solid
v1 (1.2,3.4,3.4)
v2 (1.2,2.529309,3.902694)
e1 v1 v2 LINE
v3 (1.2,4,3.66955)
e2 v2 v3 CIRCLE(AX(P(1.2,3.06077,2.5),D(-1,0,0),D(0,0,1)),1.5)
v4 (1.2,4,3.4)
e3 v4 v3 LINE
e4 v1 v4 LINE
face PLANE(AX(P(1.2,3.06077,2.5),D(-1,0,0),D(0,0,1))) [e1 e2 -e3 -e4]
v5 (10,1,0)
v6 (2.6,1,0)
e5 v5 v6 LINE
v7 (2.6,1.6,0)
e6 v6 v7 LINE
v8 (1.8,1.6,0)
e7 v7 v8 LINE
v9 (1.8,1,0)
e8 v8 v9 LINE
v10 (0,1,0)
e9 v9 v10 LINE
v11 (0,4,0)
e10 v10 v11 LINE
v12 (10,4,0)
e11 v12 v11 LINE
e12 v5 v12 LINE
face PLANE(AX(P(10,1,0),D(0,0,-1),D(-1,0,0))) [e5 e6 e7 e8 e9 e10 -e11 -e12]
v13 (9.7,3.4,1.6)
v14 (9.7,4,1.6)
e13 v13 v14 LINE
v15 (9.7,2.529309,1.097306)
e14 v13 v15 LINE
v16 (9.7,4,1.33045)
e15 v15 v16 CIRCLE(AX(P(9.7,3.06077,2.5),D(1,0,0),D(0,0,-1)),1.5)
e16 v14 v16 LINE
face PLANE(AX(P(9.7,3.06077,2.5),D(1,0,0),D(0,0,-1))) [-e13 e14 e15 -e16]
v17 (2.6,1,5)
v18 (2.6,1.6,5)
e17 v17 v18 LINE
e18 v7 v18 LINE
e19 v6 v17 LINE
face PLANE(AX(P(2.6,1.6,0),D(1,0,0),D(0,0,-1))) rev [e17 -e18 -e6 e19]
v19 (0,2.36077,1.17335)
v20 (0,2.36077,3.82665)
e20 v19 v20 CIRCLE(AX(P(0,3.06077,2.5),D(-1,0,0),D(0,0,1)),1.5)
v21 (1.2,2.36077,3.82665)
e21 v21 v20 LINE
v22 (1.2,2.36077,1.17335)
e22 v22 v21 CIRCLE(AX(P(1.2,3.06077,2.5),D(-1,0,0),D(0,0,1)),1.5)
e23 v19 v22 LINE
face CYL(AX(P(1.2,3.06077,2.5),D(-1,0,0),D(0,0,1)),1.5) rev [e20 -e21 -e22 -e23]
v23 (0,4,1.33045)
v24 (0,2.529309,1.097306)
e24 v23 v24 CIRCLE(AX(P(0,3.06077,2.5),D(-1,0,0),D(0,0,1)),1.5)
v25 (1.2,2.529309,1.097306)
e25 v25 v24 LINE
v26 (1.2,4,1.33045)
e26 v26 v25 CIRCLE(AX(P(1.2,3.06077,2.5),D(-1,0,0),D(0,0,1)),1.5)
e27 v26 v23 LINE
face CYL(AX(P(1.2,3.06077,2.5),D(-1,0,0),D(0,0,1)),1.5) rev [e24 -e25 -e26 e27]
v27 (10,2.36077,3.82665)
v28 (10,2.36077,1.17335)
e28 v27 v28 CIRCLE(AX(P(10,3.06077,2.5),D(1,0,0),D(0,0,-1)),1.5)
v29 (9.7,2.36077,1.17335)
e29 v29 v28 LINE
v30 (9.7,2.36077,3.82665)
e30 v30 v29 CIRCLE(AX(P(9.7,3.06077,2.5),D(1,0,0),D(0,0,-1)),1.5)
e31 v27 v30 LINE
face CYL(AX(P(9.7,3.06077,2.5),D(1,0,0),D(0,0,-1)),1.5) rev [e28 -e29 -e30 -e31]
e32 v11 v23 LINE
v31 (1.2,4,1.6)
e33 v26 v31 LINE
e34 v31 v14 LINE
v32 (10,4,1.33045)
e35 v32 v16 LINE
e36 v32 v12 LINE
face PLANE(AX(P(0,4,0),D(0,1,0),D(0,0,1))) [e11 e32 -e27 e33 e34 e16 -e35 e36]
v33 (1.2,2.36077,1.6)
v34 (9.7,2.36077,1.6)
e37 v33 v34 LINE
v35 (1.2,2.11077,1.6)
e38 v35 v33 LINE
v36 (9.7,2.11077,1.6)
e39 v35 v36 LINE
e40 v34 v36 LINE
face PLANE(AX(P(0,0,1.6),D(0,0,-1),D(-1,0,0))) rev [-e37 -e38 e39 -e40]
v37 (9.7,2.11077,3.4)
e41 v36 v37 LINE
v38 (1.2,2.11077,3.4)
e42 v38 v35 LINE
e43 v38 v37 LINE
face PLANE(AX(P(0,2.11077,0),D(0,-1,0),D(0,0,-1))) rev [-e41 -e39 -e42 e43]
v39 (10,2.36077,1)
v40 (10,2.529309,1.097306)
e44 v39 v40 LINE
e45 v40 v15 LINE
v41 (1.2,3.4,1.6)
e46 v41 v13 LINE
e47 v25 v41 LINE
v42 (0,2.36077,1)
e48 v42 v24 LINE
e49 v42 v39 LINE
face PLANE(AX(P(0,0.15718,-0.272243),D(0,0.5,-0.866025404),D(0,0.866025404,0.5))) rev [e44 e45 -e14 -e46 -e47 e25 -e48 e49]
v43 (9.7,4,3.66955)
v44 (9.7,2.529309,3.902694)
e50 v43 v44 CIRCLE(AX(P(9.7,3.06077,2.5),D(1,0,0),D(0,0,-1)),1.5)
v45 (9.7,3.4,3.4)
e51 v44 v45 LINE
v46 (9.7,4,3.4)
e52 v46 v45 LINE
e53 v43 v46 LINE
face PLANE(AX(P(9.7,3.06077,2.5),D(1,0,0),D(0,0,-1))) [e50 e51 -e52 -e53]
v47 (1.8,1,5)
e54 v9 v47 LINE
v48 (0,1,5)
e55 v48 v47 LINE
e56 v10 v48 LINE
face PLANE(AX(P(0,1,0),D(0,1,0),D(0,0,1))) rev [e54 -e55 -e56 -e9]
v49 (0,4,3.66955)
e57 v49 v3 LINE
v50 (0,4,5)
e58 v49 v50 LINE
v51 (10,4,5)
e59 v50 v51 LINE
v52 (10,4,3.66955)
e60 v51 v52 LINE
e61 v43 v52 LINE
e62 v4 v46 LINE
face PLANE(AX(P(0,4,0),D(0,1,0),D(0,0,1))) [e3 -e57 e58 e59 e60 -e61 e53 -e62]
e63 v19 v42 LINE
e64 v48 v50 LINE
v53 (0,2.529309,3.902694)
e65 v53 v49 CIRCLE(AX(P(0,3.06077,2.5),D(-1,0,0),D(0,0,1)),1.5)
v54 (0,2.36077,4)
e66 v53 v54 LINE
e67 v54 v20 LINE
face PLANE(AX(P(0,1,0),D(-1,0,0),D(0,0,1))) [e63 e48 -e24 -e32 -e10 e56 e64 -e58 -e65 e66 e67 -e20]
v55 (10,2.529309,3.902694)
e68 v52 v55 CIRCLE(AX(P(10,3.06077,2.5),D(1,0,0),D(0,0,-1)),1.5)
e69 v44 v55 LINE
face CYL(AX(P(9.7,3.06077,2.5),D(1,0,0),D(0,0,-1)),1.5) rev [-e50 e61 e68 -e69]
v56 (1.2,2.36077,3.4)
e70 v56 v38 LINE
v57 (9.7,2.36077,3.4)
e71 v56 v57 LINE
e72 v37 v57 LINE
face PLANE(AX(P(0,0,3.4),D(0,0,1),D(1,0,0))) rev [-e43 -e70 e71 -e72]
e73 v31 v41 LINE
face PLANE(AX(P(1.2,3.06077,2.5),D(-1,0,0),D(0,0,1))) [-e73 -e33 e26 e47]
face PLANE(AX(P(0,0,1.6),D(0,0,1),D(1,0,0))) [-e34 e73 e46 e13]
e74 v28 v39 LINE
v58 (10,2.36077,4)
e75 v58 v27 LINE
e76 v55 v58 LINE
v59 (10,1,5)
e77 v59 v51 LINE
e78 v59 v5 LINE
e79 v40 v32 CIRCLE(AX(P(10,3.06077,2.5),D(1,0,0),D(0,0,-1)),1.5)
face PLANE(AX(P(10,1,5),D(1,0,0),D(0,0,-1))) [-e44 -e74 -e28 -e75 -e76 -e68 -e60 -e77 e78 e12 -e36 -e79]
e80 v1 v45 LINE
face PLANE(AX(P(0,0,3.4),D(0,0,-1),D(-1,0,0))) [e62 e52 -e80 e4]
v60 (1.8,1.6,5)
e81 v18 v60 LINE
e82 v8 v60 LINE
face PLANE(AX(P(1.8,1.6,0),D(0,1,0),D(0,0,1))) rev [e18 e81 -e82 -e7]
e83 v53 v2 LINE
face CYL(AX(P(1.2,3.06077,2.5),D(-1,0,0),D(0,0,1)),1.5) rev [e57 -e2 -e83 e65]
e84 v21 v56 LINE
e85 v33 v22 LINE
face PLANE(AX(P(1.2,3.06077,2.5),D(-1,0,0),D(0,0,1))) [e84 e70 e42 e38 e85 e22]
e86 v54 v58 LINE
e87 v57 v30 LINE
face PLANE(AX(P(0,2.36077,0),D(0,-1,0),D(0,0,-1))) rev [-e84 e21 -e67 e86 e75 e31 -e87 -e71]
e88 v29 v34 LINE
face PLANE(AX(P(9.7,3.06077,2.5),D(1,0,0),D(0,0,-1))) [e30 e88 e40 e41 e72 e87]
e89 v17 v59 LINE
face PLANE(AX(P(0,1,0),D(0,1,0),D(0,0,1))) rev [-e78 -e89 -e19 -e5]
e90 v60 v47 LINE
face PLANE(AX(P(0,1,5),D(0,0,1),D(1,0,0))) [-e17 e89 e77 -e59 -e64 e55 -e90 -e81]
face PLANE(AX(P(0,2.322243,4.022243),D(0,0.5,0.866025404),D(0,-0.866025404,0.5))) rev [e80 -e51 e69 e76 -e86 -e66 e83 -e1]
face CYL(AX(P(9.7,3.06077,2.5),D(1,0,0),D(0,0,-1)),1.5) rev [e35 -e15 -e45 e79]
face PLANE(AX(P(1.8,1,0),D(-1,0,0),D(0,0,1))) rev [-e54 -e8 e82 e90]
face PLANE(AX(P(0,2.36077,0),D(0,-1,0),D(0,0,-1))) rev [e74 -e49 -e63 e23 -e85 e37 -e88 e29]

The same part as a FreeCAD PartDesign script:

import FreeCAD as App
import Part
import Sketcher

V = App.Vector
Q = App.Units.Quantity

doc = App.newDocument("Part")
body = doc.addObject("PartDesign::Body", "Body")

# Sketch on XZ plane
sketch1 = body.newObject("Sketcher::SketchObject", "Sketch")
sketch1.AttachmentSupport = (doc.getObject("XZ_Plane"), [""])
sketch1.MapMode = "FlatFace"
sketch1.AttachmentOffset = App.Placement(V(0, 0, -4), App.Rotation())
sketch1.addGeometry([
    Part.LineSegment(V(10, 5, 0), V(10, 0, 0)),
    Part.LineSegment(V(10, 0, 0), V(0, 0, 0)),
    Part.LineSegment(V(0, 0, 0), V(0, 5, 0)),
    Part.LineSegment(V(0, 5, 0), V(10, 5, 0)),
], False)
sketch1.addConstraint([
    Sketcher.Constraint("Coincident", 0, 2, 1, 1),
    Sketcher.Constraint("Coincident", 1, 2, 2, 1),
    Sketcher.Constraint("Coincident", 2, 2, 3, 1),
    Sketcher.Constraint("Coincident", 3, 2, 0, 1),
    Sketcher.Constraint("Vertical", 0),
    Sketcher.Constraint("Horizontal", 1),
    Sketcher.Constraint("Vertical", 2),
    Sketcher.Constraint("Horizontal", 3),
    Sketcher.Constraint("Coincident", 1, 2, -1, 1),
    Sketcher.Constraint("DistanceX", 1, 2, 1, 1, 10.0),
    Sketcher.Constraint("DistanceY", 0, 2, 0, 1, 5.0),
])
pad1 = body.newObject("PartDesign::Pad", "Pad")
pad1.Profile = sketch1
pad1.Length = 3

# Sketch on YZ plane
sketch2 = body.newObject("Sketcher::SketchObject", "Sketch001")
sketch2.AttachmentSupport = (doc.getObject("YZ_Plane"), [""])
sketch2.MapMode = "FlatFace"
sketch2.AttachmentOffset = App.Placement(V(0, 0, 10), App.Rotation())
sketch2.addGeometry([
    Part.LineSegment(V(3.4, 3.4, 0), V(2.36, 4, 0)),  # 0
    Part.LineSegment(V(2.36, 4, 0), V(2.36, 3.4, 0)),  # 1
    Part.LineSegment(V(2.36, 3.4, 0), V(2.11, 3.4, 0)),  # 2
    Part.LineSegment(V(2.11, 3.4, 0), V(2.11, 1.6, 0)),  # 3
    Part.LineSegment(V(2.11, 1.6, 0), V(2.36, 1.6, 0)),  # 4
    Part.LineSegment(V(2.36, 1.6, 0), V(2.36, 1, 0)),  # 5
    Part.LineSegment(V(2.36, 1, 0), V(3.4, 1.6, 0)),  # 6
    Part.LineSegment(V(3.4, 1.6, 0), V(4, 1.6, 0)),  # 7
    Part.LineSegment(V(4, 1.6, 0), V(4, 3.4, 0)),  # 8
    Part.LineSegment(V(4, 3.4, 0), V(3.4, 3.4, 0)),  # 9
], False)
sketch2.addConstraint([
    Sketcher.Constraint("Coincident", 0, 2, 1, 1),
    Sketcher.Constraint("Coincident", 1, 2, 2, 1),
    Sketcher.Constraint("Coincident", 2, 2, 3, 1),
    Sketcher.Constraint("Coincident", 3, 2, 4, 1),
    Sketcher.Constraint("Coincident", 4, 2, 5, 1),
    Sketcher.Constraint("Coincident", 5, 2, 6, 1),
    Sketcher.Constraint("Coincident", 6, 2, 7, 1),
    Sketcher.Constraint("Coincident", 7, 2, 8, 1),
    Sketcher.Constraint("Coincident", 8, 2, 9, 1),
    Sketcher.Constraint("Coincident", 9, 2, 0, 1),
    Sketcher.Constraint("Vertical", 1),
    Sketcher.Constraint("Horizontal", 2),
    Sketcher.Constraint("Vertical", 3),
    Sketcher.Constraint("Horizontal", 4),
    Sketcher.Constraint("Vertical", 5),
    Sketcher.Constraint("Horizontal", 7),
    Sketcher.Constraint("Vertical", 8),
    Sketcher.Constraint("Horizontal", 9),
    Sketcher.Constraint("Horizontal", 4, 2, 6, 2),
    Sketcher.Constraint("Horizontal", 2, 2, 8, 2),
    Sketcher.Constraint("Vertical", 1, 2, 4, 2),
    Sketcher.Constraint("Vertical", 6, 2, 9, 2),
    Sketcher.Constraint("Equal", 9, 1),
    Sketcher.Constraint("Equal", 1, 5),
    Sketcher.Constraint("Angle", 0, Q("150 deg")),
    Sketcher.Constraint("DistanceX", 7, 1, 7, 2, 0.6),
    Sketcher.Constraint("DistanceY", 3, 2, 3, 1, 1.8),
    Sketcher.Constraint("DistanceY", -1, 1, 0, 2, 4.0),
    Sketcher.Constraint("DistanceX", -1, 1, 7, 2, 4.0),
    Sketcher.Constraint("DistanceX", 2, 2, 2, 1, 0.25),
])
pocket1 = body.newObject("PartDesign::Pocket", "Pocket")
pocket1.Profile = sketch2
pocket1.Type = "ThroughAll"

# Sketch on YZ plane
sketch3 = body.newObject("Sketcher::SketchObject", "Sketch002")
sketch3.AttachmentSupport = (doc.getObject("YZ_Plane"), [""])
sketch3.MapMode = "FlatFace"
sketch3.addGeometry(Part.Circle(V(3.1, 2.5, 0), V(0, 0, 1), 1.5), False)
sketch3.addConstraint([
    Sketcher.Constraint("Diameter", 0, 3.0),
    Sketcher.Constraint("DistanceY", -1, 1, 0, 3, 2.5),
    Sketcher.Constraint("DistanceX", -1, 1, 0, 3, 3.06077),
])
pocket2 = body.newObject("PartDesign::Pocket", "Pocket001")
pocket2.Profile = sketch3
pocket2.Length = 1.2
pocket2.Reversed = True

# Sketch on YZ plane
sketch4 = body.newObject("Sketcher::SketchObject", "Sketch003")
sketch4.AttachmentSupport = (doc.getObject("YZ_Plane"), [""])
sketch4.MapMode = "FlatFace"
sketch4.AttachmentOffset = App.Placement(V(0, 0, 9.7), App.Rotation())
sketch4.addGeometry([
    Part.Circle(V(3.1, 2.5, 0), V(0, 0, 1), 1.5),
    Part.Circle(V(3.1, 2.5, 0), V(0, 0, 1), 0.6),
], False)
sketch4.addConstraint([
    Sketcher.Constraint("Coincident", 1, 3, 0, 3),
    Sketcher.Constraint("Diameter", 0, 3.0),
    Sketcher.Constraint("Diameter", 1, 1.1),
    Sketcher.Constraint("DistanceY", -1, 1, 0, 3, 2.5),
    Sketcher.Constraint("DistanceX", -1, 1, 0, 3, 3.06077),
])
pocket3 = body.newObject("PartDesign::Pocket", "Pocket002")
pocket3.Profile = sketch4
pocket3.Length = 0.3
pocket3.Reversed = True

# Sketch on XY plane
sketch5 = body.newObject("Sketcher::SketchObject", "Sketch004")
sketch5.AttachmentSupport = (doc.getObject("XY_Plane"), [""])
sketch5.MapMode = "FlatFace"
sketch5.AttachmentOffset = App.Placement(V(0, 0, 5), App.Rotation())
sketch5.addGeometry([
    Part.LineSegment(V(1.8, 1.6, 0), V(1.8, 1, 0)),
    Part.LineSegment(V(1.8, 1, 0), V(2.6, 1, 0)),
    Part.LineSegment(V(2.6, 1, 0), V(2.6, 1.6, 0)),
    Part.LineSegment(V(2.6, 1.6, 0), V(1.8, 1.6, 0)),
], False)
sketch5.addConstraint([
    Sketcher.Constraint("Coincident", 0, 2, 1, 1),
    Sketcher.Constraint("Coincident", 1, 2, 2, 1),
    Sketcher.Constraint("Coincident", 2, 2, 3, 1),
    Sketcher.Constraint("Coincident", 3, 2, 0, 1),
    Sketcher.Constraint("Vertical", 0),
    Sketcher.Constraint("Horizontal", 1),
    Sketcher.Constraint("Vertical", 2),
    Sketcher.Constraint("Horizontal", 3),
    Sketcher.Constraint("DistanceX", 1, 1, 1, 2, 0.8),
    Sketcher.Constraint("DistanceY", 0, 2, 0, 1, 0.6),
    Sketcher.Constraint("DistanceY", -1, 1, 0, 2, 1.0),
    Sketcher.Constraint("DistanceX", -1, 1, 0, 2, 1.8),
])
pocket4 = body.newObject("PartDesign::Pocket", "Pocket003")
pocket4.Profile = sketch5
pocket4.Type = "ThroughAll"

doc.recompute()
